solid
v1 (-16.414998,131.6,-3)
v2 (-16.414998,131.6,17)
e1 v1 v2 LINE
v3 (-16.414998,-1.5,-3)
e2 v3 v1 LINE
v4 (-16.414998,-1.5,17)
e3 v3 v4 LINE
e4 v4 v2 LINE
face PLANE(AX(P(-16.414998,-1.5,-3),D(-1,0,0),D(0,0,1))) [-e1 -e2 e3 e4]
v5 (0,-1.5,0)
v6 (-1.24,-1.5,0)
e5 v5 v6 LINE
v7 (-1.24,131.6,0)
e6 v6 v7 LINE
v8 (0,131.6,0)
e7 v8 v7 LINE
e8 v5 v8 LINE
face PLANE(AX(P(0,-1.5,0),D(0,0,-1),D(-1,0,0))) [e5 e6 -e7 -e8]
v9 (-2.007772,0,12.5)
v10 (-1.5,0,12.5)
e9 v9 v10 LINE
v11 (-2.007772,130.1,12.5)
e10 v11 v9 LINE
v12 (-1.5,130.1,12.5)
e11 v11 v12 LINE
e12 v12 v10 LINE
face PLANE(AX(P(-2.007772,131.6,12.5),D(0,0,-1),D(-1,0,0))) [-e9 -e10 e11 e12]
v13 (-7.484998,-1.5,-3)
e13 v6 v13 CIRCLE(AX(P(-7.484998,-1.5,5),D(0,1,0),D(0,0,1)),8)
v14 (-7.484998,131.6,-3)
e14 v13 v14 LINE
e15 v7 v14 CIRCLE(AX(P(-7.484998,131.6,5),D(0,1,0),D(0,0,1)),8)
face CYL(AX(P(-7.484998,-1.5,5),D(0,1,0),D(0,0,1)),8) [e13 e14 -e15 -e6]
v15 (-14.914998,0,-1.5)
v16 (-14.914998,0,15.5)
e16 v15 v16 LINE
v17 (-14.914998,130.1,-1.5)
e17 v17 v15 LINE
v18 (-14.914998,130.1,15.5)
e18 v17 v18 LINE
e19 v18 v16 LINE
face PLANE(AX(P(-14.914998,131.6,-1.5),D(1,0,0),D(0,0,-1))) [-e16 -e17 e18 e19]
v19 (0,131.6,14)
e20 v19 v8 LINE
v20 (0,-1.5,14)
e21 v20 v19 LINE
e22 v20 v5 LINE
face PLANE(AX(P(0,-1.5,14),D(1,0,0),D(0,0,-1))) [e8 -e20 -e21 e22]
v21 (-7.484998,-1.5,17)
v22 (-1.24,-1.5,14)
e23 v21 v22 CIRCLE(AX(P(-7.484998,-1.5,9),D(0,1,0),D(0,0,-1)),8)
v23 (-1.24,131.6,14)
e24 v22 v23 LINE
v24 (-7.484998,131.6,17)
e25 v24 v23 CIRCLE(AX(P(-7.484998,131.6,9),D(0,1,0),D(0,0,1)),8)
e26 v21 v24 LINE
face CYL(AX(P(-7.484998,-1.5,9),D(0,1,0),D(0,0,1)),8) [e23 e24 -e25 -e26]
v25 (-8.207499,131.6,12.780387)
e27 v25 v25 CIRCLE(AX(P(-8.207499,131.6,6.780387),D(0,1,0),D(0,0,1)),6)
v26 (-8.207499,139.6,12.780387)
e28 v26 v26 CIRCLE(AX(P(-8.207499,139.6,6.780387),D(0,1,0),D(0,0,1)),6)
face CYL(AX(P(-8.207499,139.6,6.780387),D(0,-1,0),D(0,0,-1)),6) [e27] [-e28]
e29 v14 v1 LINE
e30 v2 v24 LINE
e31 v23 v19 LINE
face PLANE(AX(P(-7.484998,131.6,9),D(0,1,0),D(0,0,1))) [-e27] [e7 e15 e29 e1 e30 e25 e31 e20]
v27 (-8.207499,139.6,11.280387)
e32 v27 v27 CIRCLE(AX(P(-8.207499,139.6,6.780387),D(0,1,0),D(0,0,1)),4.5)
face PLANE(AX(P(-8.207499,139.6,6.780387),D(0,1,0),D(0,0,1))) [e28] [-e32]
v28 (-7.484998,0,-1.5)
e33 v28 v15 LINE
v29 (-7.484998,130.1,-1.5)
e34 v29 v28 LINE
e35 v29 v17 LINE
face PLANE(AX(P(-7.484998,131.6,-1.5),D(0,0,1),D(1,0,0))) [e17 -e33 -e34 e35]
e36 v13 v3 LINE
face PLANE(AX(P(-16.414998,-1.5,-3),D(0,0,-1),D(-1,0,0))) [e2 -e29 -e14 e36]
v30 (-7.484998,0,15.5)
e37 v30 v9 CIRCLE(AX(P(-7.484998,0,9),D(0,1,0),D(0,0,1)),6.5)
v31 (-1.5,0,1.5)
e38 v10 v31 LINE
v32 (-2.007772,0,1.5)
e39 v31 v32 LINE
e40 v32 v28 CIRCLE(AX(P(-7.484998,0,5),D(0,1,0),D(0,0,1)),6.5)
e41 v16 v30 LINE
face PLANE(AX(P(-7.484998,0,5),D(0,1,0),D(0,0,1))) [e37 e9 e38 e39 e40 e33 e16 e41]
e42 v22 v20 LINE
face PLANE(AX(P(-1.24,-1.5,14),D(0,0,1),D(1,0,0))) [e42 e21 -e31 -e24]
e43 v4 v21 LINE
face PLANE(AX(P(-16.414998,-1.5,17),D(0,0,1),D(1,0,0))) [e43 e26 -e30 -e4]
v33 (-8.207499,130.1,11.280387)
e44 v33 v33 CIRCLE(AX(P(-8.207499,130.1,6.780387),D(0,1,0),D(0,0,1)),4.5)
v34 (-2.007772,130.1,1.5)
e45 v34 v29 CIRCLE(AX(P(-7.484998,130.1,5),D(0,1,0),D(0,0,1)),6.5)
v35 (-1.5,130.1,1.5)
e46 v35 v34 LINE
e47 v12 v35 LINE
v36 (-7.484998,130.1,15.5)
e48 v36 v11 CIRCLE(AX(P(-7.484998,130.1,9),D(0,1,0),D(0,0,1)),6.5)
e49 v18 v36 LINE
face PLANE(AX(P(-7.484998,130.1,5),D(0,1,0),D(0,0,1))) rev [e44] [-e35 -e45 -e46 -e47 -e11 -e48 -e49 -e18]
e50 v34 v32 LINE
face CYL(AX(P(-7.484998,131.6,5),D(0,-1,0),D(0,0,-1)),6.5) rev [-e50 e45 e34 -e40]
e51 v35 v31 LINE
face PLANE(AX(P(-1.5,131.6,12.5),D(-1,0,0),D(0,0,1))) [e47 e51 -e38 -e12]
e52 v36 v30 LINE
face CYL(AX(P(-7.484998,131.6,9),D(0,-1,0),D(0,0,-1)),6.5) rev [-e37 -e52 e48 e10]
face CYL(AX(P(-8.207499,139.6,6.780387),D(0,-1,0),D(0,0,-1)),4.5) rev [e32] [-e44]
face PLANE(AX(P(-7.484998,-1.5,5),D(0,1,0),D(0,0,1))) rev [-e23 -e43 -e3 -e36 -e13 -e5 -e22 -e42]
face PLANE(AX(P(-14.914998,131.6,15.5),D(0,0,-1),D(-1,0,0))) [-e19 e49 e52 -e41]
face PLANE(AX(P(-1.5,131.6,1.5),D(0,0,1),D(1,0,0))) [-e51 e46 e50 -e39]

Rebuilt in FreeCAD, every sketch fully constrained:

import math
import FreeCAD as App
import Part
import Sketcher
from FreeCAD import Vector
Q = App.Units.Quantity

doc = App.newDocument("Part")
body = doc.addObject("PartDesign::Body", "Body")

sketch1 = body.newObject("Sketcher::SketchObject", "Sketch")
sketch1.AttachmentSupport = (doc.getObject("XZ_Plane"), [""])
sketch1.MapMode = "FlatFace"
sketch1.addGeometry([
    Part.LineSegment(Vector(-16.414998, -3, 0), Vector(-16.414998, 17, 0)),
    Part.LineSegment(Vector(-16.414998, 17, 0), Vector(-7.484998, 17, 0)),
    Part.ArcOfCircle(Part.Circle(Vector(-7.484998, 9, 0), Vector(0, 0, 1), 8), math.radians(38.682187), math.radians(90)),
    Part.LineSegment(Vector(-1.24, 14, 0), Vector(0, 14, 0)),
    Part.LineSegment(Vector(0, 14, 0), Vector(0, 0, 0)),
    Part.LineSegment(Vector(0, 0, 0), Vector(-1.24, 0, 0)),
    Part.ArcOfCircle(Part.Circle(Vector(-7.484998, 5, 0), Vector(0, 0, 1), 8), math.radians(-90), math.radians(-38.682187)),
    Part.LineSegment(Vector(-7.484998, -3, 0), Vector(-16.414998, -3, 0)),
], False)
sketch1.addConstraint([
    Sketcher.Constraint("Coincident", 0, 2, 1, 1),
    Sketcher.Constraint("Tangent", 1, 2, 2, 2),
    Sketcher.Constraint("Coincident", 2, 1, 3, 1),
    Sketcher.Constraint("Coincident", 3, 2, 4, 1),
    Sketcher.Constraint("Coincident", 4, 2, 5, 1),
    Sketcher.Constraint("Coincident", 5, 2, 6, 2),
    Sketcher.Constraint("Tangent", 6, 1, 7, 1),
    Sketcher.Constraint("Coincident", 7, 2, 0, 1),
    Sketcher.Constraint("Vertical", 0),
    Sketcher.Constraint("Horizontal", 1),
    Sketcher.Constraint("Horizontal", 3),
    Sketcher.Constraint("Vertical", 4),
    Sketcher.Constraint("Horizontal", 5),
    Sketcher.Constraint("Horizontal", 7),
    Sketcher.Constraint("Coincident", 4, 2, -1, 1),
    Sketcher.Constraint("Equal", 2, 6),
    Sketcher.Constraint("Vertical", 2, 3, 6, 3),
    Sketcher.Constraint("Vertical", 2, 1, 5, 2),
    Sketcher.Constraint("Radius", 2, Q("8 mm")),
    Sketcher.Constraint("DistanceY", 0, 1, 0, 2, Q("20 mm")),
    Sketcher.Constraint("DistanceY", 4, 2, 4, 1, Q("14 mm")),
    Sketcher.Constraint("DistanceX", 1, 1, 1, 2, Q("8.93 mm")),
    Sketcher.Constraint("DistanceX", 3, 1, 3, 2, Q("1.24 mm")),
])
pad1 = body.newObject("PartDesign::Pad", "Pad")
pad1.Profile = sketch1
pad1.Length = 1.5

sketch2 = body.newObject("Sketcher::SketchObject", "Sketch001")
sketch2.AttachmentSupport = (doc.getObject("XZ_Plane"), [""])
sketch2.MapMode = "FlatFace"
sketch2.AttachmentOffset = App.Placement(Vector(0, 0, -131.6), App.Rotation())
sketch2.addGeometry([
    Part.LineSegment(Vector(-16.414998, -3, 0), Vector(-16.414998, 17, 0)),
    Part.LineSegment(Vector(-16.414998, 17, 0), Vector(-7.484998, 17, 0)),
    Part.ArcOfCircle(Part.Circle(Vector(-7.484998, 9, 0), Vector(0, 0, 1), 8), math.radians(38.682187), math.radians(90)),
    Part.LineSegment(Vector(-1.24, 14, 0), Vector(0, 14, 0)),
    Part.LineSegment(Vector(0, 14, 0), Vector(0, 0, 0)),
    Part.LineSegment(Vector(0, 0, 0), Vector(-1.24, 0, 0)),
    Part.ArcOfCircle(Part.Circle(Vector(-7.484998, 5, 0), Vector(0, 0, 1), 8), math.radians(-90), math.radians(-38.682187)),
    Part.LineSegment(Vector(-7.484998, -3, 0), Vector(-16.414998, -3, 0)),
    Part.LineSegment(Vector(-14.914998, -1.5, 0), Vector(-7.484998, -1.5, 0)),
    Part.ArcOfCircle(Part.Circle(Vector(-7.484998, 5, 0), Vector(0, 0, 1), 6.5), math.radians(-90), math.radians(-32.57897)),
    Part.LineSegment(Vector(-2.007772, 1.5, 0), Vector(-1.5, 1.5, 0)),
    Part.LineSegment(Vector(-1.5, 1.5, 0), Vector(-1.5, 12.5, 0)),
    Part.LineSegment(Vector(-1.5, 12.5, 0), Vector(-2.007772, 12.5, 0)),
    Part.ArcOfCircle(Part.Circle(Vector(-7.484998, 9, 0), Vector(0, 0, 1), 6.5), math.radians(32.57897), math.radians(90)),
    Part.LineSegment(Vector(-7.484998, 15.5, 0), Vector(-14.914998, 15.5, 0)),
    Part.LineSegment(Vector(-14.914998, 15.5, 0), Vector(-14.914998, -1.5, 0)),
], False)
sketch2.addConstraint([
    Sketcher.Constraint("Coincident", 0, 2, 1, 1),
    Sketcher.Constraint("Tangent", 1, 2, 2, 2),
    Sketcher.Constraint("Coincident", 2, 1, 3, 1),
    Sketcher.Constraint("Coincident", 3, 2, 4, 1),
    Sketcher.Constraint("Coincident", 4, 2, 5, 1),
    Sketcher.Constraint("Coincident", 5, 2, 6, 2),
    Sketcher.Constraint("Tangent", 6, 1, 7, 1),
    Sketcher.Constraint("Coincident", 7, 2, 0, 1),
    Sketcher.Constraint("Tangent", 8, 2, 9, 1),
    Sketcher.Constraint("Coincident", 9, 2, 10, 1),
    Sketcher.Constraint("Coincident", 10, 2, 11, 1),
    Sketcher.Constraint("Coincident", 11, 2, 12, 1),
    Sketcher.Constraint("Coincident", 12, 2, 13, 1),
    Sketcher.Constraint("Tangent", 13, 2, 14, 1),
    Sketcher.Constraint("Coincident", 14, 2, 15, 1),
    Sketcher.Constraint("Coincident", 15, 2, 8, 1),
    Sketcher.Constraint("Vertical", 0),
    Sketcher.Constraint("Horizontal", 1),
    Sketcher.Constraint("Horizontal", 3),
    Sketcher.Constraint("Vertical", 4),
    Sketcher.Constraint("Horizontal", 5),
    Sketcher.Constraint("Horizontal", 7),
    Sketcher.Constraint("Horizontal", 8),
    Sketcher.Constraint("Horizontal", 10),
    Sketcher.Constraint("Vertical", 11),
    Sketcher.Constraint("Horizontal", 12),
    Sketcher.Constraint("Horizontal", 14),
    Sketcher.Constraint("Vertical", 15),
    Sketcher.Constraint("Coincident", 4, 2, -1, 1),
    Sketcher.Constraint("Coincident", 9, 3, 6, 3),
    Sketcher.Constraint("Coincident", 13, 3, 2, 3),
    Sketcher.Constraint("Equal", 2, 6),
    Sketcher.Constraint("Equal", 9, 13),
    Sketcher.Constraint("Vertical", 2, 3, 6, 3),
    Sketcher.Constraint("Vertical", 2, 1, 5, 2),
    Sketcher.Constraint("Vertical", 9, 2, 12, 2),
    Sketcher.Constraint("Radius", 2, Q("8 mm")),
    Sketcher.Constraint("Radius", 9, Q("6.5 mm")),
    Sketcher.Constraint("DistanceY", 0, 1, 0, 2, Q("20 mm")),
    Sketcher.Constraint("DistanceY", 4, 2, 4, 1, Q("14 mm")),
    Sketcher.Constraint("DistanceY", 11, 1, 11, 2, Q("11 mm")),
    Sketcher.Constraint("DistanceX", 1, 1, 1, 2, Q("8.93 mm")),
    Sketcher.Constraint("DistanceX", 3, 1, 3, 2, Q("1.24 mm")),
    Sketcher.Constraint("DistanceX", 8, 1, 8, 2, Q("7.43 mm")),
    Sketcher.Constraint("DistanceX", 10, 2, -1, 1, Q("1.5 mm")),
])
pad2 = body.newObject("PartDesign::Pad", "Pad001")
pad2.Profile = sketch2
pad2.Length = 131.6

sketch3 = body.newObject("Sketcher::SketchObject", "Sketch002")
sketch3.AttachmentSupport = (doc.getObject("XZ_Plane"), [""])
sketch3.MapMode = "FlatFace"
sketch3.AttachmentOffset = App.Placement(Vector(0, 0, -131.6), App.Rotation())
sketch3.addGeometry([
    Part.LineSegment(Vector(-7.484998, -3, 0), Vector(-16.414998, -3, 0)),
    Part.LineSegment(Vector(-16.414998, -3, 0), Vector(-16.414998, 17, 0)),
    Part.LineSegment(Vector(-16.414998, 17, 0), Vector(-7.484998, 17, 0)),
    Part.ArcOfCircle(Part.Circle(Vector(-7.484998, 9, 0), Vector(0, 0, 1), 8), math.radians(38.682187), math.radians(90)),
    Part.LineSegment(Vector(-1.24, 14, 0), Vector(0, 14, 0)),
    Part.LineSegment(Vector(0, 14, 0), Vector(0, 0, 0)),
    Part.LineSegment(Vector(0, 0, 0), Vector(-1.24, 0, 0)),
    Part.ArcOfCircle(Part.Circle(Vector(-7.484998, 5, 0), Vector(0, 0, 1), 8), math.radians(-90), math.radians(-38.682187)),
], False)
sketch3.addConstraint([
    Sketcher.Constraint("Coincident", 0, 2, 1, 1),
    Sketcher.Constraint("Coincident", 1, 2, 2, 1),
    Sketcher.Constraint("Tangent", 2, 2, 3, 2),
    Sketcher.Constraint("Coincident", 3, 1, 4, 1),
    Sketcher.Constraint("Coincident", 4, 2, 5, 1),
    Sketcher.Constraint("Coincident", 5, 2, 6, 1),
    Sketcher.Constraint("Coincident", 6, 2, 7, 2),
    Sketcher.Constraint("Tangent", 7, 1, 0, 1),
    Sketcher.Constraint("Horizontal", 0),
    Sketcher.Constraint("Vertical", 1),
    Sketcher.Constraint("Horizontal", 2),
    Sketcher.Constraint("Horizontal", 4),
    Sketcher.Constraint("Vertical", 5),
    Sketcher.Constraint("Horizontal", 6),
    Sketcher.Constraint("Coincident", 5, 2, -1, 1),
    Sketcher.Constraint("Equal", 3, 7),
    Sketcher.Constraint("Vertical", 3, 3, 7, 3),
    Sketcher.Constraint("Vertical", 3, 1, 6, 2),
    Sketcher.Constraint("Radius", 3, Q("8 mm")),
    Sketcher.Constraint("DistanceY", 1, 1, 1, 2, Q("20 mm")),
    Sketcher.Constraint("DistanceY", 5, 2, 5, 1, Q("14 mm")),
    Sketcher.Constraint("DistanceX", 0, 2, 0, 1, Q("8.93 mm")),
    Sketcher.Constraint("DistanceX", 4, 1, 4, 2, Q("1.24 mm")),
])
pad3 = body.newObject("PartDesign::Pad", "Pad002")
pad3.Profile = sketch3
pad3.Length = 1.5

sketch4 = body.newObject("Sketcher::SketchObject", "Sketch003")
sketch4.AttachmentSupport = (doc.getObject("XZ_Plane"), [""])
sketch4.MapMode = "FlatFace"
sketch4.AttachmentOffset = App.Placement(Vector(0, 0, -131.6), App.Rotation())
sketch4.addGeometry([
    Part.Circle(Vector(-8.207499, 6.780387, 0), Vector(0, 0, 1), 6),
    Part.Circle(Vector(-8.207499, 6.780387, 0), Vector(0, 0, 1), 4.5),
], False)
sketch4.addConstraint([
    Sketcher.Constraint("Coincident", 1, 3, 0, 3),
    Sketcher.Constraint("Diameter", 0, Q("12 mm")),
    Sketcher.Constraint("Diameter", 1, Q("9 mm")),
    Sketcher.Constraint("DistanceX", 0, 3, -1, 1, Q("8.207499 mm")),
    Sketcher.Constraint("DistanceY", -1, 1, 0, 3, Q("6.780387 mm")),
])
pad4 = body.newObject("PartDesign::Pad", "Pad003")
pad4.Profile = sketch4
pad4.Length = 8
pad4.Reversed = True

sketch5 = body.newObject("Sketcher::SketchObject", "Sketch004")
sketch5.AttachmentSupport = (doc.getObject("XZ_Plane"), [""])
sketch5.MapMode = "FlatFace"
sketch5.AttachmentOffset = App.Placement(Vector(0, 0, -123.6), App.Rotation())
sketch5.addGeometry(Part.Circle(Vector(-8.207499, 6.780387, 0), Vector(0, 0, 1), 4.5), False)
sketch5.addConstraint([
    Sketcher.Constraint("Diameter", 0, Q("9 mm")),
    Sketcher.Constraint("DistanceX", 0, 3, -1, 1, Q("8.207499 mm")),
    Sketcher.Constraint("DistanceY", -1, 1, 0, 3, Q("6.780387 mm")),
])
pocket1 = body.newObject("PartDesign::Pocket", "Pocket")
pocket1.Profile = sketch5
pocket1.Length = 8

doc.recompute()
